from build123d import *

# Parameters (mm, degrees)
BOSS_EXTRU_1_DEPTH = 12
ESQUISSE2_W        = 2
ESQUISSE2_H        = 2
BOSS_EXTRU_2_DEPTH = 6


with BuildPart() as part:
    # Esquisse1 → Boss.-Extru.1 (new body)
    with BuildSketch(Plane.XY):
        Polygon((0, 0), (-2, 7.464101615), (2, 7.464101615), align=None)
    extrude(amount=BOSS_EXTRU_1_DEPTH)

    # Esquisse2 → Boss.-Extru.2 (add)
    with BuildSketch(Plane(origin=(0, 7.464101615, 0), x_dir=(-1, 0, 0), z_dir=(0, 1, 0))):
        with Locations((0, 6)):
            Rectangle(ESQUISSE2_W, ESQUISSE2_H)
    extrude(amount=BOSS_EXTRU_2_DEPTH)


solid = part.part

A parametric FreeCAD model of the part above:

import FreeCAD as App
import Part
import Sketcher
Q = App.Units.Quantity


def add_polygon(sketch, points):
    """Adds a closed chain of lines whose ends are joined by coincident constraints."""
    first, n = sketch.GeometryCount, len(points)
    for a, b in zip(points, points[1:] + points[:1]):
        sketch.addGeometry(Part.LineSegment(App.Vector(*a, 0), App.Vector(*b, 0)), False)
    for i in range(n):
        sketch.addConstraint(Sketcher.Constraint("Coincident", first + i, 2, first + (i + 1) % n, 1))

doc = App.newDocument("Part")
body = doc.addObject("PartDesign::Body", "Body")

# Sketch on XY plane
sketch1 = body.newObject("Sketcher::SketchObject", "Sketch")
sketch1.AttachmentSupport = (doc.getObject("XY_Plane"), [""])
sketch1.MapMode = "FlatFace"
add_polygon(sketch1, [(-2, 7.5), (0, 0), (2, 7.5)])  # lines 0-2
sketch1.addConstraint(Sketcher.Constraint("Horizontal", 2))
sketch1.addConstraint(Sketcher.Constraint("Coincident", 0, 2, -1, 1))
sketch1.addConstraint(Sketcher.Constraint("Equal", 0, 1))
sketch1.addConstraint(Sketcher.Constraint("DistanceX", 2, 2, 2, 1, 4.0))
sketch1.addConstraint(Sketcher.Constraint("Angle", 0, Q("-75 deg")))
pad1 = body.newObject("PartDesign::Pad", "Pad")
pad1.Profile = sketch1
pad1.Length = 12

# Sketch on XZ plane
sketch2 = body.newObject("Sketcher::SketchObject", "Sketch001")
sketch2.AttachmentSupport = (doc.getObject("XZ_Plane"), [""])
sketch2.MapMode = "FlatFace"
sketch2.AttachmentOffset = App.Placement(App.Vector(0, 0, -7.464102), App.Rotation())
add_polygon(sketch2, [(1, 7), (1, 5), (-1, 5), (-1, 7)])  # lines 0-3
sketch2.addConstraint(Sketcher.Constraint("Vertical", 0))
sketch2.addConstraint(Sketcher.Constraint("Horizontal", 1))
sketch2.addConstraint(Sketcher.Constraint("Vertical", 2))
sketch2.addConstraint(Sketcher.Constraint("Horizontal", 3))
sketch2.addConstraint(Sketcher.Constraint("Equal", 3, 0))
sketch2.addConstraint(Sketcher.Constraint("DistanceX", 1, 2, 1, 1, 2.0))
sketch2.addConstraint(Sketcher.Constraint("DistanceX", -1, 1, 0, 2, 1.0))
sketch2.addConstraint(Sketcher.Constraint("DistanceY", -1, 1, 0, 2, 5.0))
pad2 = body.newObject("PartDesign::Pad", "Pad001")
pad2.Profile = sketch2
pad2.Length = 6
pad2.Reversed = True

doc.recompute()
